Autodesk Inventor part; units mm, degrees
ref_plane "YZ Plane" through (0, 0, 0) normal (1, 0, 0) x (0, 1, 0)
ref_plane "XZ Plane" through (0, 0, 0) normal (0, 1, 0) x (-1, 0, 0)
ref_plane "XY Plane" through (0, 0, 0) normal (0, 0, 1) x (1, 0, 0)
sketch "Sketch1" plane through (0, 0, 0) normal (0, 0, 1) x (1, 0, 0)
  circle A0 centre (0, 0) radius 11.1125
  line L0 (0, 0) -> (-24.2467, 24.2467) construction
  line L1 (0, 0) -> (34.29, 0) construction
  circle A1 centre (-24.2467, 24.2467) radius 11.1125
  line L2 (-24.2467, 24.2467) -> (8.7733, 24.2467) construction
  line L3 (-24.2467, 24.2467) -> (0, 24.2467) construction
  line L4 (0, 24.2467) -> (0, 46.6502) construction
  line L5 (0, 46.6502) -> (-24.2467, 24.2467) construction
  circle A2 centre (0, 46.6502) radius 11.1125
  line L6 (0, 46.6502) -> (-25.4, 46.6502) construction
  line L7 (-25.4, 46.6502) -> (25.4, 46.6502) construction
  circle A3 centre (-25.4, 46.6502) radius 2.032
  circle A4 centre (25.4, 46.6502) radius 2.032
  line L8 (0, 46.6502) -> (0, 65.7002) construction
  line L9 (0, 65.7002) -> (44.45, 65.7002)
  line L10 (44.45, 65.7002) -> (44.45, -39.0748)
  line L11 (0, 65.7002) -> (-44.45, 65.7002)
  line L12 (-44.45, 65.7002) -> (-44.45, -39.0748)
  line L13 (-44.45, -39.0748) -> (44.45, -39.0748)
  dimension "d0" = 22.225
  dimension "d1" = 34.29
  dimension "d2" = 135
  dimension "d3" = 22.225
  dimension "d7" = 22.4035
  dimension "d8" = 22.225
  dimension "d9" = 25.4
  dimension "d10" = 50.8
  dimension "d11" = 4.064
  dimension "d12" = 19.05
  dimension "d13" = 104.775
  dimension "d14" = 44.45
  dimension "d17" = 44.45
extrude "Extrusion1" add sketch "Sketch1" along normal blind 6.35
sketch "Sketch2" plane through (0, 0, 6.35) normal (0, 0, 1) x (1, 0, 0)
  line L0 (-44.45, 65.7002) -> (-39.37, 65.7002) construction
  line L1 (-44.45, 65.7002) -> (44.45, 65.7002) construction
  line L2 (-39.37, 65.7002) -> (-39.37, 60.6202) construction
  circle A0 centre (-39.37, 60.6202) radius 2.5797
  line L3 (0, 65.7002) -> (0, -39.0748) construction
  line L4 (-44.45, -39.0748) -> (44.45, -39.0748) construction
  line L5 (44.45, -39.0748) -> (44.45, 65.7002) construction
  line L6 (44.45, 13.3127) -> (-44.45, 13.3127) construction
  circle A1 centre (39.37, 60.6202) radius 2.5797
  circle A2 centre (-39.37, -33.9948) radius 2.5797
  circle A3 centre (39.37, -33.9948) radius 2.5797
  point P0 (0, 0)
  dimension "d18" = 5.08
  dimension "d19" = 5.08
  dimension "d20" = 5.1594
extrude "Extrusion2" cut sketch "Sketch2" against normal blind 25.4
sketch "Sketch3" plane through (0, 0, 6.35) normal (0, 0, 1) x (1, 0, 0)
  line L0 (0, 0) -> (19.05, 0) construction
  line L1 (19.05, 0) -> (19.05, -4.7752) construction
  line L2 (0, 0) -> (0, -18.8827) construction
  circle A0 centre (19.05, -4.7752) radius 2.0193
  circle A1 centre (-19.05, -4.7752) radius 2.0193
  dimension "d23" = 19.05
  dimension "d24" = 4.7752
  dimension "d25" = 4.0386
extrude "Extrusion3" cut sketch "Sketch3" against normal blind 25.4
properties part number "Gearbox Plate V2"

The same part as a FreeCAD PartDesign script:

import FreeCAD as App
import Part
import Sketcher

V = App.Vector
Q = App.Units.Quantity


def add_polygon(sketch, points):
    """Adds a closed chain of lines whose ends are joined by coincident constraints."""
    first, n = sketch.GeometryCount, len(points)
    for a, b in zip(points, points[1:] + points[:1]):
        sketch.addGeometry(Part.LineSegment(App.Vector(*a, 0), App.Vector(*b, 0)), False)
    for i in range(n):
        sketch.addConstraint(Sketcher.Constraint("Coincident", first + i, 2, first + (i + 1) % n, 1))

doc = App.newDocument("Part")
body = doc.addObject("PartDesign::Body", "Body")

# Sketch on XY plane
sketch1 = doc.addObject("Sketcher::SketchObject", "Sketch")
body.addObject(sketch1)
sketch1.AttachmentSupport = (doc.XY_Plane, [""])
sketch1.MapMode = "FlatFace"
add_polygon(sketch1, [(44.5, 65.7), (-44.5, 65.7), (-44.5, -39.1), (44.5, -39.1)])  # lines 0-3
sketch1.addGeometry(Part.Circle(V(0, 0, 0), V(0, 0, 1), 11.1), False)  # 4
sketch1.addGeometry(Part.Circle(V(-24.2, 24.2, 0), V(0, 0, 1), 11.1), False)  # 5
sketch1.addGeometry(Part.Circle(V(-25.4, 46.7, 0), V(0, 0, 1), 2), False)  # 6
sketch1.addGeometry(Part.Circle(V(0, 46.7, 0), V(0, 0, 1), 11.1), False)  # 7
sketch1.addGeometry(Part.Circle(V(25.4, 46.7, 0), V(0, 0, 1), 2), False)  # 8
sketch1.addConstraint(Sketcher.Constraint("Horizontal", 0))
sketch1.addConstraint(Sketcher.Constraint("Vertical", 1))
sketch1.addConstraint(Sketcher.Constraint("Horizontal", 2))
sketch1.addConstraint(Sketcher.Constraint("Vertical", 3))
sketch1.addConstraint(Sketcher.Constraint("Coincident", 4, 3, -1, 1))
sketch1.addConstraint(Sketcher.Constraint("Equal", 4, 5))
sketch1.addConstraint(Sketcher.Constraint("Equal", 5, 7))
sketch1.addConstraint(Sketcher.Constraint("Equal", 6, 8))
sketch1.addConstraint(Sketcher.Constraint("Symmetric", 6, 3, 8, 3, -2))
sketch1.addConstraint(Sketcher.Constraint("PointOnObject", 7, 3, -2))
sketch1.addConstraint(Sketcher.Constraint("Horizontal", 6, 3, 7, 3))
sketch1.addConstraint(Sketcher.Constraint("Diameter", 6, Q("0.16 in")))
sketch1.addConstraint(Sketcher.Constraint("Diameter", 4, Q("0.875 in")))
sketch1.addConstraint(Sketcher.Constraint("DistanceX", 6, 3, -1, 1, Q("1 in")))
sketch1.addConstraint(Sketcher.Constraint("DistanceY", 1, 2, 1, 1, Q("4.125 in")))
sketch1.addConstraint(Sketcher.Constraint("DistanceX", 0, 2, -1, 1, Q("1.75 in")))
sketch1.addConstraint(Sketcher.Constraint("DistanceX", -1, 1, 2, 2, Q("1.75 in")))
sketch1.addConstraint(Sketcher.Constraint("DistanceY", 6, 3, 0, 2, Q("0.75 in")))
sketch1.addConstraint(Sketcher.Constraint("DistanceY", 5, 3, 6, 3, Q("22.4035 mm")))
sketch1.addConstraint(Sketcher.Constraint("DistanceX", 5, 3, -1, 1, Q("0.9546 in")))
sketch1.addConstraint(Sketcher.Constraint("DistanceY", -1, 1, 5, 3, Q("0.9546 in")))
pad1 = doc.addObject("PartDesign::Pad", "Pad")
body.addObject(pad1)
pad1.Profile = sketch1
pad1.Length = Q("0.25 in")

# Sketch on XY plane
sketch2 = doc.addObject("Sketcher::SketchObject", "Sketch001")
body.addObject(sketch2)
sketch2.AttachmentSupport = (doc.XY_Plane, [""])
sketch2.MapMode = "FlatFace"
sketch2.AttachmentOffset = App.Placement(V(0, 0, 0.25 * 25.4), App.Rotation())
sketch2.addGeometry(Part.Circle(V(-39.4, 60.6, 0), V(0, 0, 1), 2.6), False)
sketch2.addGeometry(Part.Circle(V(39.4, 60.6, 0), V(0, 0, 1), 2.6), False)
sketch2.addGeometry(Part.Circle(V(-39.4, -34, 0), V(0, 0, 1), 2.6), False)
sketch2.addGeometry(Part.Circle(V(39.4, -34, 0), V(0, 0, 1), 2.6), False)
sketch2.addConstraint(Sketcher.Constraint("Equal", 0, 1))
sketch2.addConstraint(Sketcher.Constraint("Equal", 1, 2))
sketch2.addConstraint(Sketcher.Constraint("Equal", 2, 3))
sketch2.addConstraint(Sketcher.Constraint("Symmetric", 0, 3, 1, 3, -2))
sketch2.addConstraint(Sketcher.Constraint("Symmetric", 2, 3, 3, 3, -2))
sketch2.addConstraint(Sketcher.Constraint("Vertical", 0, 3, 2, 3))
sketch2.addConstraint(Sketcher.Constraint("Diameter", 0, Q("0.203126 in")))
sketch2.addConstraint(Sketcher.Constraint("DistanceX", 0, 3, 1, 3, Q("3.1 in")))
sketch2.addConstraint(Sketcher.Constraint("DistanceY", 2, 3, 0, 3, Q("3.725 in")))
sketch2.addConstraint(Sketcher.Constraint("DistanceY", -1, 1, 0, 3, Q("60.6202 mm")))
pocket1 = doc.addObject("PartDesign::Pocket", "Pocket")
body.addObject(pocket1)
pocket1.Profile = sketch2
pocket1.Length = Q("1 in")

# Sketch on XY plane
sketch3 = doc.addObject("Sketcher::SketchObject", "Sketch002")
body.addObject(sketch3)
sketch3.AttachmentSupport = (doc.XY_Plane, [""])
sketch3.MapMode = "FlatFace"
sketch3.AttachmentOffset = App.Placement(V(0, 0, 0.25 * 25.4), App.Rotation())
sketch3.addGeometry(Part.Circle(V(19.1, -4.8, 0), V(0, 0, 1), 2), False)
sketch3.addGeometry(Part.Circle(V(-19.1, -4.8, 0), V(0, 0, 1), 2), False)
sketch3.addConstraint(Sketcher.Constraint("Equal", 0, 1))
sketch3.addConstraint(Sketcher.Constraint("Symmetric", 0, 3, 1, 3, -2))
sketch3.addConstraint(Sketcher.Constraint("Diameter", 0, Q("0.159 in")))
sketch3.addConstraint(Sketcher.Constraint("DistanceX", -1, 1, 0, 3, Q("0.75 in")))
sketch3.addConstraint(Sketcher.Constraint("DistanceY", 0, 3, -1, 1, Q("0.188 in")))
pocket2 = doc.addObject("PartDesign::Pocket", "Pocket001")
body.addObject(pocket2)
pocket2.Profile = sketch3
pocket2.Length = Q("1 in")

doc.recompute()
